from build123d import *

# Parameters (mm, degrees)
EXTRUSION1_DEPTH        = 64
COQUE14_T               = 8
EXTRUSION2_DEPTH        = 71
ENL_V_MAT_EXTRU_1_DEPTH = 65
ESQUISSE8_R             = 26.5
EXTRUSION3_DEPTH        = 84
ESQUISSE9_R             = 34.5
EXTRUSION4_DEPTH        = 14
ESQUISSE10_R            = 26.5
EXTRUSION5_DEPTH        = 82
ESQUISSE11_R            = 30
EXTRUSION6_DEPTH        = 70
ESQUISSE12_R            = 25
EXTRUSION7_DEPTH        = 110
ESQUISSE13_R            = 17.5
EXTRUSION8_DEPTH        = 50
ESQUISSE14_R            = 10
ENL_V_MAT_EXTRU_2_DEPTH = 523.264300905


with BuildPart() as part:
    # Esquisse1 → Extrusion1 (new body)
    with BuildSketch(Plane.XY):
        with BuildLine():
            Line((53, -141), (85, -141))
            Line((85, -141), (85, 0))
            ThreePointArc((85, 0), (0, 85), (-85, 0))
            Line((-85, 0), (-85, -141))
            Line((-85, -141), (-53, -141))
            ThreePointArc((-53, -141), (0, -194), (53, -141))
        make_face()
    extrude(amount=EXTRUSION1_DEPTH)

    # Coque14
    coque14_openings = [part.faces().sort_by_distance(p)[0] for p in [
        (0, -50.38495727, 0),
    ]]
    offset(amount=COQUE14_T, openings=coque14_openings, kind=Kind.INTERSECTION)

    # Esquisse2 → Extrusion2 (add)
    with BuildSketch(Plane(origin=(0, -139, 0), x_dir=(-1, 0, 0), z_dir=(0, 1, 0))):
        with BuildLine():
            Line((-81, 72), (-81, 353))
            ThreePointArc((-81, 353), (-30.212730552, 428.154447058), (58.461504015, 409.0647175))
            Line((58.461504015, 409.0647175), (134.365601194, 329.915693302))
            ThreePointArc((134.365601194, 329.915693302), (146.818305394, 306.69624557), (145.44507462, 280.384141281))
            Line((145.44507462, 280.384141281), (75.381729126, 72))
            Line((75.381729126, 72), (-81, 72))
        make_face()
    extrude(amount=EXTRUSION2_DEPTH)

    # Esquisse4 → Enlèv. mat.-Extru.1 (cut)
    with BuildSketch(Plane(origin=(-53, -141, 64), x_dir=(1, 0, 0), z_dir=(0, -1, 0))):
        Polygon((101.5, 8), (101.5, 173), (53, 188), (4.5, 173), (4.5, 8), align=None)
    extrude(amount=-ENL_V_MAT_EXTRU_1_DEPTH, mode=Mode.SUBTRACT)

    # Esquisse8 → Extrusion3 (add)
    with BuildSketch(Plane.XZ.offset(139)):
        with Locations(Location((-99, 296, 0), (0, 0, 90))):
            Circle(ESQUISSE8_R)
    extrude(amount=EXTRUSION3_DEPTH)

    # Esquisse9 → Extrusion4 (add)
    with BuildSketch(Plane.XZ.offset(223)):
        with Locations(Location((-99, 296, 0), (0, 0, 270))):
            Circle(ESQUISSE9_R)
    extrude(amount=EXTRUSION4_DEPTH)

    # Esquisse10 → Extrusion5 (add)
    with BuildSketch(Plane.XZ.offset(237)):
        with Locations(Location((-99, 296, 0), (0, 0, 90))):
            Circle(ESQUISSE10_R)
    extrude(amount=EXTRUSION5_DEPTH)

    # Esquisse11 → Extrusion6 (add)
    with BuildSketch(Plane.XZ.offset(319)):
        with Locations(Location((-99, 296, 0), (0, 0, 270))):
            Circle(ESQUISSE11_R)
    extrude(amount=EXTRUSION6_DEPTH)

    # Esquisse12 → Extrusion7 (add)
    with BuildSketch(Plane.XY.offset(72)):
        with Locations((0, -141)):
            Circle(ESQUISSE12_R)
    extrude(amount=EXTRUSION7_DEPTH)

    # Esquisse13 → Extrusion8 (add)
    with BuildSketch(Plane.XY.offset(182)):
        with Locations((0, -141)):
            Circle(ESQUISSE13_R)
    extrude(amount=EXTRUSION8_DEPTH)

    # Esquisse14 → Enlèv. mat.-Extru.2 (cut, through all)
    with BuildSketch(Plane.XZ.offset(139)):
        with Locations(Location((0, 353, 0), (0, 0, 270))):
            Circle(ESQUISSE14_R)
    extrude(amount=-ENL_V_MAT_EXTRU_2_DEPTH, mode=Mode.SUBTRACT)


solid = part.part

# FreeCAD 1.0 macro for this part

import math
import FreeCAD as App
import Part
import Sketcher


def faces_at(feature, points):
    """Names of the faces that lie closest to the given points."""
    faces = feature.Shape.Faces
    near = lambda p: min(range(len(faces)), key=lambda i: faces[i].distToShape(Part.Vertex(*p))[0])
    return sorted({f"Face{near(p) + 1}" for p in points})

doc = App.newDocument("Part")
body = doc.addObject("PartDesign::Body", "Body")

# Sketch on XY plane
sketch1 = body.newObject("Sketcher::SketchObject", "Sketch")
sketch1.AttachmentSupport = (doc.getObject("XY_Plane"), [""])
sketch1.MapMode = "FlatFace"
sketch1.addGeometry(Part.LineSegment(App.Vector(53, -141, 0), App.Vector(85, -141, 0)), False)
sketch1.addGeometry(Part.LineSegment(App.Vector(85, -141, 0), App.Vector(85, 0, 0)), False)
sketch1.addGeometry(Part.ArcOfCircle(Part.Circle(App.Vector(0, 0, 0), App.Vector(0, 0, 1), 85), math.radians(0), math.radians(180)), False)
sketch1.addGeometry(Part.LineSegment(App.Vector(-85, 0, 0), App.Vector(-85, -141, 0)), False)
sketch1.addGeometry(Part.LineSegment(App.Vector(-85, -141, 0), App.Vector(-53, -141, 0)), False)
sketch1.addGeometry(Part.ArcOfCircle(Part.Circle(App.Vector(0, -141, 0), App.Vector(0, 0, 1), 53), math.radians(180), math.radians(360)), False)
sketch1.addConstraint(Sketcher.Constraint("Coincident", 0, 2, 1, 1))
sketch1.addConstraint(Sketcher.Constraint("Tangent", 1, 2, 2, 1))
sketch1.addConstraint(Sketcher.Constraint("Tangent", 2, 2, 3, 1))
sketch1.addConstraint(Sketcher.Constraint("Coincident", 3, 2, 4, 1))
sketch1.addConstraint(Sketcher.Constraint("Coincident", 4, 2, 5, 1))
sketch1.addConstraint(Sketcher.Constraint("Coincident", 5, 2, 0, 1))
sketch1.addConstraint(Sketcher.Constraint("Horizontal", 0))
sketch1.addConstraint(Sketcher.Constraint("Vertical", 1))
sketch1.addConstraint(Sketcher.Constraint("Vertical", 3))
sketch1.addConstraint(Sketcher.Constraint("Horizontal", 4))
sketch1.addConstraint(Sketcher.Constraint("Coincident", 2, 3, -1, 1))
sketch1.addConstraint(Sketcher.Constraint("Symmetric", 4, 2, 5, 2, -2))
sketch1.addConstraint(Sketcher.Constraint("Horizontal", 5, 3, 0, 2))
sketch1.addConstraint(Sketcher.Constraint("Radius", 2, 85.0))
sketch1.addConstraint(Sketcher.Constraint("Radius", 5, 53.0))
sketch1.addConstraint(Sketcher.Constraint("DistanceY", 1, 1, 1, 2, 141.0))
pad1 = body.newObject("PartDesign::Pad", "Pad")
pad1.Profile = sketch1
pad1.Length = 64
doc.recompute()

thickness = body.newObject("PartDesign::Thickness", "Thickness")
thickness.Base = (pad1, faces_at(pad1, [(0, -54.5, 0)]))
thickness.Value = 8
thickness.Reversed = False
thickness.Join = "Intersection"

# Sketch on XZ plane
sketch2 = body.newObject("Sketcher::SketchObject", "Sketch001")
sketch2.AttachmentSupport = (doc.getObject("XZ_Plane"), [""])
sketch2.MapMode = "FlatFace"
sketch2.AttachmentOffset = App.Placement(App.Vector(0, 0, 139), App.Rotation())
sketch2.addGeometry(Part.LineSegment(App.Vector(81, 353, 0), App.Vector(81, 72, 0)), False)
sketch2.addGeometry(Part.LineSegment(App.Vector(81, 72, 0), App.Vector(-75, 72, 0)), False)
sketch2.addGeometry(Part.LineSegment(App.Vector(-75, 72, 0), App.Vector(-145, 280, 0)), False)
sketch2.addGeometry(Part.ArcOfCircle(Part.Circle(App.Vector(-99, 296, 0), App.Vector(0, 0, 1), 49), math.radians(136), math.radians(199)), False)
sketch2.addGeometry(Part.LineSegment(App.Vector(-134, 330, 0), App.Vector(-58, 409, 0)), False)
sketch2.addGeometry(Part.ArcOfCircle(Part.Circle(App.Vector(0, 353, 0), App.Vector(0, 0, 1), 81), math.radians(0), math.radians(136)), False)
sketch2.addConstraint(Sketcher.Constraint("Coincident", 0, 2, 1, 1))
sketch2.addConstraint(Sketcher.Constraint("Coincident", 1, 2, 2, 1))
sketch2.addConstraint(Sketcher.Constraint("Tangent", 2, 2, 3, 2))
sketch2.addConstraint(Sketcher.Constraint("Tangent", 3, 1, 4, 1))
sketch2.addConstraint(Sketcher.Constraint("Tangent", 4, 2, 5, 2))
sketch2.addConstraint(Sketcher.Constraint("Tangent", 5, 1, 0, 1))
sketch2.addConstraint(Sketcher.Constraint("Vertical", 0))
sketch2.addConstraint(Sketcher.Constraint("Horizontal", 1))
sketch2.addConstraint(Sketcher.Constraint("PointOnObject", 5, 3, -2))
sketch2.addConstraint(Sketcher.Constraint("Radius", 3, 49.0))
sketch2.addConstraint(Sketcher.Constraint("Radius", 5, 81.0))
sketch2.addConstraint(Sketcher.Constraint("DistanceY", 0, 2, 0, 1, 281.0))
sketch2.addConstraint(Sketcher.Constraint("DistanceX", 3, 3, -1, 1, 99.0))
sketch2.addConstraint(Sketcher.Constraint("DistanceY", -1, 1, 3, 3, 296.0))
sketch2.addConstraint(Sketcher.Constraint("DistanceY", -1, 1, 5, 3, 353.0))
sketch2.addConstraint(Sketcher.Constraint("DistanceX", 1, 2, 1, 1, 156.381729))
pad2 = body.newObject("PartDesign::Pad", "Pad001")
pad2.Profile = sketch2
pad2.Length = 71
pad2.Reversed = True

# Sketch on XZ plane
sketch3 = body.newObject("Sketcher::SketchObject", "Sketch002")
sketch3.AttachmentSupport = (doc.getObject("XZ_Plane"), [""])
sketch3.MapMode = "FlatFace"
sketch3.AttachmentOffset = App.Placement(App.Vector(0, 0, 141), App.Rotation())
sketch3.addGeometry(Part.LineSegment(App.Vector(48, 72, 0), App.Vector(48, 237, 0)), False)
sketch3.addGeometry(Part.LineSegment(App.Vector(48, 237, 0), App.Vector(0, 252, 0)), False)
sketch3.addGeometry(Part.LineSegment(App.Vector(0, 252, 0), App.Vector(-48, 237, 0)), False)
sketch3.addGeometry(Part.LineSegment(App.Vector(-48, 237, 0), App.Vector(-48, 72, 0)), False)
sketch3.addGeometry(Part.LineSegment(App.Vector(-48, 72, 0), App.Vector(48, 72, 0)), False)
sketch3.addConstraint(Sketcher.Constraint("Coincident", 0, 2, 1, 1))
sketch3.addConstraint(Sketcher.Constraint("Coincident", 1, 2, 2, 1))
sketch3.addConstraint(Sketcher.Constraint("Coincident", 2, 2, 3, 1))
sketch3.addConstraint(Sketcher.Constraint("Coincident", 3, 2, 4, 1))
sketch3.addConstraint(Sketcher.Constraint("Coincident", 4, 2, 0, 1))
sketch3.addConstraint(Sketcher.Constraint("Vertical", 0))
sketch3.addConstraint(Sketcher.Constraint("Vertical", 3))
sketch3.addConstraint(Sketcher.Constraint("Horizontal", 4))
sketch3.addConstraint(Sketcher.Constraint("Symmetric", 0, 2, 2, 2, -2))
sketch3.addConstraint(Sketcher.Constraint("PointOnObject", 1, 2, -2))
sketch3.addConstraint(Sketcher.Constraint("DistanceX", 4, 1, 4, 2, 97.0))
sketch3.addConstraint(Sketcher.Constraint("DistanceY", 0, 1, 0, 2, 165.0))
sketch3.addConstraint(Sketcher.Constraint("DistanceY", -1, 1, 0, 2, 237.0))
sketch3.addConstraint(Sketcher.Constraint("DistanceY", -1, 1, 1, 2, 252.0))
pocket1 = body.newObject("PartDesign::Pocket", "Pocket")
pocket1.Profile = sketch3
pocket1.Length = 65

# Sketch on XZ plane
sketch4 = body.newObject("Sketcher::SketchObject", "Sketch003")
sketch4.AttachmentSupport = (doc.getObject("XZ_Plane"), [""])
sketch4.MapMode = "FlatFace"
sketch4.AttachmentOffset = App.Placement(App.Vector(0, 0, 139), App.Rotation())
sketch4.addGeometry(Part.Circle(App.Vector(-99, 296, 0), App.Vector(0, 0, 1), 26), False)
sketch4.addConstraint(Sketcher.Constraint("Diameter", 0, 53.0))
sketch4.addConstraint(Sketcher.Constraint("DistanceX", 0, 3, -1, 1, 99.0))
sketch4.addConstraint(Sketcher.Constraint("DistanceY", -1, 1, 0, 3, 296.0))
pad3 = body.newObject("PartDesign::Pad", "Pad002")
pad3.Profile = sketch4
pad3.Length = 84

# Sketch on XZ plane
sketch5 = body.newObject("Sketcher::SketchObject", "Sketch004")
sketch5.AttachmentSupport = (doc.getObject("XZ_Plane"), [""])
sketch5.MapMode = "FlatFace"
sketch5.AttachmentOffset = App.Placement(App.Vector(0, 0, 223), App.Rotation())
sketch5.addGeometry(Part.Circle(App.Vector(-99, 296, 0), App.Vector(0, 0, 1), 34), False)
sketch5.addConstraint(Sketcher.Constraint("Diameter", 0, 69.0))
sketch5.addConstraint(Sketcher.Constraint("DistanceX", 0, 3, -1, 1, 99.0))
sketch5.addConstraint(Sketcher.Constraint("DistanceY", -1, 1, 0, 3, 296.0))
pad4 = body.newObject("PartDesign::Pad", "Pad003")
pad4.Profile = sketch5
pad4.Length = 14

# Sketch on XZ plane
sketch6 = body.newObject("Sketcher::SketchObject", "Sketch005")
sketch6.AttachmentSupport = (doc.getObject("XZ_Plane"), [""])
sketch6.MapMode = "FlatFace"
sketch6.AttachmentOffset = App.Placement(App.Vector(0, 0, 237), App.Rotation())
sketch6.addGeometry(Part.Circle(App.Vector(-99, 296, 0), App.Vector(0, 0, 1), 26), False)
sketch6.addConstraint(Sketcher.Constraint("Diameter", 0, 53.0))
sketch6.addConstraint(Sketcher.Constraint("DistanceX", 0, 3, -1, 1, 99.0))
sketch6.addConstraint(Sketcher.Constraint("DistanceY", -1, 1, 0, 3, 296.0))
pad5 = body.newObject("PartDesign::Pad", "Pad004")
pad5.Profile = sketch6
pad5.Length = 82

# Sketch on XZ plane
sketch7 = body.newObject("Sketcher::SketchObject", "Sketch006")
sketch7.AttachmentSupport = (doc.getObject("XZ_Plane"), [""])
sketch7.MapMode = "FlatFace"
sketch7.AttachmentOffset = App.Placement(App.Vector(0, 0, 319), App.Rotation())
sketch7.addGeometry(Part.Circle(App.Vector(-99, 296, 0), App.Vector(0, 0, 1), 30), False)
sketch7.addConstraint(Sketcher.Constraint("Diameter", 0, 60.0))
sketch7.addConstraint(Sketcher.Constraint("DistanceX", 0, 3, -1, 1, 99.0))
sketch7.addConstraint(Sketcher.Constraint("DistanceY", -1, 1, 0, 3, 296.0))
pad6 = body.newObject("PartDesign::Pad", "Pad005")
pad6.Profile = sketch7
pad6.Length = 70

# Sketch on XY plane
sketch8 = body.newObject("Sketcher::SketchObject", "Sketch007")
sketch8.AttachmentSupport = (doc.getObject("XY_Plane"), [""])
sketch8.MapMode = "FlatFace"
sketch8.AttachmentOffset = App.Placement(App.Vector(0, 0, 72), App.Rotation())
sketch8.addGeometry(Part.Circle(App.Vector(0, -141, 0), App.Vector(0, 0, 1), 25), False)
sketch8.addConstraint(Sketcher.Constraint("PointOnObject", 0, 3, -2))
sketch8.addConstraint(Sketcher.Constraint("Diameter", 0, 50.0))
sketch8.addConstraint(Sketcher.Constraint("DistanceY", 0, 3, -1, 1, 141.0))
pad7 = body.newObject("PartDesign::Pad", "Pad006")
pad7.Profile = sketch8
pad7.Length = 110

# Sketch on XY plane
sketch9 = body.newObject("Sketcher::SketchObject", "Sketch008")
sketch9.AttachmentSupport = (doc.getObject("XY_Plane"), [""])
sketch9.MapMode = "FlatFace"
sketch9.AttachmentOffset = App.Placement(App.Vector(0, 0, 182), App.Rotation())
sketch9.addGeometry(Part.Circle(App.Vector(0, -141, 0), App.Vector(0, 0, 1), 18), False)
sketch9.addConstraint(Sketcher.Constraint("PointOnObject", 0, 3, -2))
sketch9.addConstraint(Sketcher.Constraint("Diameter", 0, 35.0))
sketch9.addConstraint(Sketcher.Constraint("DistanceY", 0, 3, -1, 1, 141.0))
pad8 = body.newObject("PartDesign::Pad", "Pad007")
pad8.Profile = sketch9
pad8.Length = 50

# Sketch on XZ plane
sketch10 = body.newObject("Sketcher::SketchObject", "Sketch009")
sketch10.AttachmentSupport = (doc.getObject("XZ_Plane"), [""])
sketch10.MapMode = "FlatFace"
sketch10.AttachmentOffset = App.Placement(App.Vector(0, 0, 139), App.Rotation())
sketch10.addGeometry(Part.Circle(App.Vector(0, 353, 0), App.Vector(0, 0, 1), 10), False)
sketch10.addConstraint(Sketcher.Constraint("PointOnObject", 0, 3, -2))
sketch10.addConstraint(Sketcher.Constraint("Diameter", 0, 20.0))
sketch10.addConstraint(Sketcher.Constraint("DistanceY", -1, 1, 0, 3, 353.0))
pocket2 = body.newObject("PartDesign::Pocket", "Pocket001")
pocket2.Profile = sketch10
pocket2.Type = "ThroughAll"

doc.recompute()
